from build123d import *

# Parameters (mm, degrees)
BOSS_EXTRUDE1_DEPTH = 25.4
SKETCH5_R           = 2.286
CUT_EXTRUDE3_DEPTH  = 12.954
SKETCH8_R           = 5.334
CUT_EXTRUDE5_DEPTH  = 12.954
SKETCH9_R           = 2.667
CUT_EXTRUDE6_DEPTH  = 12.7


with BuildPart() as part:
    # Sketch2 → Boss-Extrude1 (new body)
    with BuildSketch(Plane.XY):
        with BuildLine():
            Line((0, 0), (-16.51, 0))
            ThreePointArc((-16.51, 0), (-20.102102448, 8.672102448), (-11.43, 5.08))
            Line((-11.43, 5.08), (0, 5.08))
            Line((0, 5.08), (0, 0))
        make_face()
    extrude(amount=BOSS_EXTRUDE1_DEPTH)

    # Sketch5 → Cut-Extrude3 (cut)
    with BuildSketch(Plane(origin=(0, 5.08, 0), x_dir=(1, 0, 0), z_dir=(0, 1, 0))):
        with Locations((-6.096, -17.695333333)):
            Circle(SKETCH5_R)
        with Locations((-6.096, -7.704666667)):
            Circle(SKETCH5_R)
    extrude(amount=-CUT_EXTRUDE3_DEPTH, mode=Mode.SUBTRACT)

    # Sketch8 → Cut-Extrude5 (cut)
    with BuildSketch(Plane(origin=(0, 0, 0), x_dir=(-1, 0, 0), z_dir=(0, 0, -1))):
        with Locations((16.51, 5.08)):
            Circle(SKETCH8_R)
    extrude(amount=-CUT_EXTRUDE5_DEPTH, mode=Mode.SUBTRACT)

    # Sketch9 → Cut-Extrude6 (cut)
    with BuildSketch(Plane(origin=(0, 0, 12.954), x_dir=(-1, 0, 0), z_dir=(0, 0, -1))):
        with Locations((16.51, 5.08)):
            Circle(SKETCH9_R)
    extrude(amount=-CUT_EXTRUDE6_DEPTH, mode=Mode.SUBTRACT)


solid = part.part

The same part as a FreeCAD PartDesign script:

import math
import FreeCAD as App
import Part
import Sketcher

V = App.Vector
Q = App.Units.Quantity

doc = App.newDocument("Part")
body = doc.addObject("PartDesign::Body", "Body")

# Sketch on XY plane
sketch1 = body.newObject("Sketcher::SketchObject", "Sketch")
sketch1.AttachmentSupport = (doc.getObject("XY_Plane"), [""])
sketch1.MapMode = "FlatFace"
sketch1.addGeometry([
    Part.LineSegment(V(-17, 0, 0), V(0, 0, 0)),
    Part.LineSegment(V(0, 0, 0), V(0, 5, 0)),
    Part.LineSegment(V(0, 5, 0), V(-11, 5, 0)),
    Part.ArcOfCircle(Part.Circle(V(-17, 5, 0), V(0, 0, 1), 5), math.radians(0), math.radians(270)),
], False)
sketch1.addConstraint([
    Sketcher.Constraint("Coincident", 0, 2, 1, 1),
    Sketcher.Constraint("Coincident", 1, 2, 2, 1),
    Sketcher.Constraint("Coincident", 2, 2, 3, 1),
    Sketcher.Constraint("Tangent", 3, 2, 0, 1),
    Sketcher.Constraint("Horizontal", 0),
    Sketcher.Constraint("Vertical", 1),
    Sketcher.Constraint("Horizontal", 2),
    Sketcher.Constraint("Coincident", 0, 2, -1, 1),
    Sketcher.Constraint("Horizontal", 3, 3, 1, 2),
    Sketcher.Constraint("Radius", 3, Q("0.2 in")),
    Sketcher.Constraint("DistanceX", 0, 1, 0, 2, Q("0.65 in")),
])
pad1 = body.newObject("PartDesign::Pad", "Pad")
pad1.Profile = sketch1
pad1.Length = Q("1 in")

# Sketch on XZ plane
sketch2 = body.newObject("Sketcher::SketchObject", "Sketch001")
sketch2.AttachmentSupport = (doc.getObject("XZ_Plane"), [""])
sketch2.MapMode = "FlatFace"
sketch2.AttachmentOffset = App.Placement(V(0, 0, -0.2 * 25.4), App.Rotation())
sketch2.addGeometry([
    Part.Circle(V(-6.1, 17.7, 0), V(0, 0, 1), 2.3),
    Part.Circle(V(-6.1, 7.7, 0), V(0, 0, 1), 2.3),
], False)
sketch2.addConstraint([
    Sketcher.Constraint("Equal", 0, 1),
    Sketcher.Constraint("Vertical", 0, 3, 1, 3),
    Sketcher.Constraint("Diameter", 0, Q("0.18 in")),
    Sketcher.Constraint("DistanceX", 0, 3, -1, 1, Q("0.24 in")),
    Sketcher.Constraint("DistanceY", -1, 1, 0, 3, 17.695333),
    Sketcher.Constraint("DistanceY", -1, 1, 1, 3, 7.704667),
])
pocket1 = body.newObject("PartDesign::Pocket", "Pocket")
pocket1.Profile = sketch2
pocket1.Length = Q("0.51 in")
pocket1.Reversed = True

# Sketch on XY plane
sketch3 = body.newObject("Sketcher::SketchObject", "Sketch002")
sketch3.AttachmentSupport = (doc.getObject("XY_Plane"), [""])
sketch3.MapMode = "FlatFace"
sketch3.addGeometry(Part.Circle(V(-17, 5, 0), V(0, 0, 1), 5), False)
sketch3.addConstraint([
    Sketcher.Constraint("Diameter", 0, Q("0.42 in")),
    Sketcher.Constraint("DistanceY", -1, 1, 0, 3, Q("0.2 in")),
    Sketcher.Constraint("DistanceX", 0, 3, -1, 1, Q("0.65 in")),
])
pocket2 = body.newObject("PartDesign::Pocket", "Pocket001")
pocket2.Profile = sketch3
pocket2.Length = Q("0.51 in")
pocket2.Reversed = True

# Sketch on XY plane
sketch4 = body.newObject("Sketcher::SketchObject", "Sketch003")
sketch4.AttachmentSupport = (doc.getObject("XY_Plane"), [""])
sketch4.MapMode = "FlatFace"
sketch4.AttachmentOffset = App.Placement(V(0, 0, 0.51 * 25.4), App.Rotation())
sketch4.addGeometry(Part.Circle(V(-16.5, 5.1, 0), V(0, 0, 1), 2.7), False)
sketch4.addConstraint([
    Sketcher.Constraint("Diameter", 0, Q("0.21 in")),
    Sketcher.Constraint("DistanceY", -1, 1, 0, 3, Q("0.2 in")),
    Sketcher.Constraint("DistanceX", 0, 3, -1, 1, Q("0.65 in")),
])
pocket3 = body.newObject("PartDesign::Pocket", "Pocket002")
pocket3.Profile = sketch4
pocket3.Length = Q("0.5 in")
pocket3.Reversed = True

doc.recompute()
